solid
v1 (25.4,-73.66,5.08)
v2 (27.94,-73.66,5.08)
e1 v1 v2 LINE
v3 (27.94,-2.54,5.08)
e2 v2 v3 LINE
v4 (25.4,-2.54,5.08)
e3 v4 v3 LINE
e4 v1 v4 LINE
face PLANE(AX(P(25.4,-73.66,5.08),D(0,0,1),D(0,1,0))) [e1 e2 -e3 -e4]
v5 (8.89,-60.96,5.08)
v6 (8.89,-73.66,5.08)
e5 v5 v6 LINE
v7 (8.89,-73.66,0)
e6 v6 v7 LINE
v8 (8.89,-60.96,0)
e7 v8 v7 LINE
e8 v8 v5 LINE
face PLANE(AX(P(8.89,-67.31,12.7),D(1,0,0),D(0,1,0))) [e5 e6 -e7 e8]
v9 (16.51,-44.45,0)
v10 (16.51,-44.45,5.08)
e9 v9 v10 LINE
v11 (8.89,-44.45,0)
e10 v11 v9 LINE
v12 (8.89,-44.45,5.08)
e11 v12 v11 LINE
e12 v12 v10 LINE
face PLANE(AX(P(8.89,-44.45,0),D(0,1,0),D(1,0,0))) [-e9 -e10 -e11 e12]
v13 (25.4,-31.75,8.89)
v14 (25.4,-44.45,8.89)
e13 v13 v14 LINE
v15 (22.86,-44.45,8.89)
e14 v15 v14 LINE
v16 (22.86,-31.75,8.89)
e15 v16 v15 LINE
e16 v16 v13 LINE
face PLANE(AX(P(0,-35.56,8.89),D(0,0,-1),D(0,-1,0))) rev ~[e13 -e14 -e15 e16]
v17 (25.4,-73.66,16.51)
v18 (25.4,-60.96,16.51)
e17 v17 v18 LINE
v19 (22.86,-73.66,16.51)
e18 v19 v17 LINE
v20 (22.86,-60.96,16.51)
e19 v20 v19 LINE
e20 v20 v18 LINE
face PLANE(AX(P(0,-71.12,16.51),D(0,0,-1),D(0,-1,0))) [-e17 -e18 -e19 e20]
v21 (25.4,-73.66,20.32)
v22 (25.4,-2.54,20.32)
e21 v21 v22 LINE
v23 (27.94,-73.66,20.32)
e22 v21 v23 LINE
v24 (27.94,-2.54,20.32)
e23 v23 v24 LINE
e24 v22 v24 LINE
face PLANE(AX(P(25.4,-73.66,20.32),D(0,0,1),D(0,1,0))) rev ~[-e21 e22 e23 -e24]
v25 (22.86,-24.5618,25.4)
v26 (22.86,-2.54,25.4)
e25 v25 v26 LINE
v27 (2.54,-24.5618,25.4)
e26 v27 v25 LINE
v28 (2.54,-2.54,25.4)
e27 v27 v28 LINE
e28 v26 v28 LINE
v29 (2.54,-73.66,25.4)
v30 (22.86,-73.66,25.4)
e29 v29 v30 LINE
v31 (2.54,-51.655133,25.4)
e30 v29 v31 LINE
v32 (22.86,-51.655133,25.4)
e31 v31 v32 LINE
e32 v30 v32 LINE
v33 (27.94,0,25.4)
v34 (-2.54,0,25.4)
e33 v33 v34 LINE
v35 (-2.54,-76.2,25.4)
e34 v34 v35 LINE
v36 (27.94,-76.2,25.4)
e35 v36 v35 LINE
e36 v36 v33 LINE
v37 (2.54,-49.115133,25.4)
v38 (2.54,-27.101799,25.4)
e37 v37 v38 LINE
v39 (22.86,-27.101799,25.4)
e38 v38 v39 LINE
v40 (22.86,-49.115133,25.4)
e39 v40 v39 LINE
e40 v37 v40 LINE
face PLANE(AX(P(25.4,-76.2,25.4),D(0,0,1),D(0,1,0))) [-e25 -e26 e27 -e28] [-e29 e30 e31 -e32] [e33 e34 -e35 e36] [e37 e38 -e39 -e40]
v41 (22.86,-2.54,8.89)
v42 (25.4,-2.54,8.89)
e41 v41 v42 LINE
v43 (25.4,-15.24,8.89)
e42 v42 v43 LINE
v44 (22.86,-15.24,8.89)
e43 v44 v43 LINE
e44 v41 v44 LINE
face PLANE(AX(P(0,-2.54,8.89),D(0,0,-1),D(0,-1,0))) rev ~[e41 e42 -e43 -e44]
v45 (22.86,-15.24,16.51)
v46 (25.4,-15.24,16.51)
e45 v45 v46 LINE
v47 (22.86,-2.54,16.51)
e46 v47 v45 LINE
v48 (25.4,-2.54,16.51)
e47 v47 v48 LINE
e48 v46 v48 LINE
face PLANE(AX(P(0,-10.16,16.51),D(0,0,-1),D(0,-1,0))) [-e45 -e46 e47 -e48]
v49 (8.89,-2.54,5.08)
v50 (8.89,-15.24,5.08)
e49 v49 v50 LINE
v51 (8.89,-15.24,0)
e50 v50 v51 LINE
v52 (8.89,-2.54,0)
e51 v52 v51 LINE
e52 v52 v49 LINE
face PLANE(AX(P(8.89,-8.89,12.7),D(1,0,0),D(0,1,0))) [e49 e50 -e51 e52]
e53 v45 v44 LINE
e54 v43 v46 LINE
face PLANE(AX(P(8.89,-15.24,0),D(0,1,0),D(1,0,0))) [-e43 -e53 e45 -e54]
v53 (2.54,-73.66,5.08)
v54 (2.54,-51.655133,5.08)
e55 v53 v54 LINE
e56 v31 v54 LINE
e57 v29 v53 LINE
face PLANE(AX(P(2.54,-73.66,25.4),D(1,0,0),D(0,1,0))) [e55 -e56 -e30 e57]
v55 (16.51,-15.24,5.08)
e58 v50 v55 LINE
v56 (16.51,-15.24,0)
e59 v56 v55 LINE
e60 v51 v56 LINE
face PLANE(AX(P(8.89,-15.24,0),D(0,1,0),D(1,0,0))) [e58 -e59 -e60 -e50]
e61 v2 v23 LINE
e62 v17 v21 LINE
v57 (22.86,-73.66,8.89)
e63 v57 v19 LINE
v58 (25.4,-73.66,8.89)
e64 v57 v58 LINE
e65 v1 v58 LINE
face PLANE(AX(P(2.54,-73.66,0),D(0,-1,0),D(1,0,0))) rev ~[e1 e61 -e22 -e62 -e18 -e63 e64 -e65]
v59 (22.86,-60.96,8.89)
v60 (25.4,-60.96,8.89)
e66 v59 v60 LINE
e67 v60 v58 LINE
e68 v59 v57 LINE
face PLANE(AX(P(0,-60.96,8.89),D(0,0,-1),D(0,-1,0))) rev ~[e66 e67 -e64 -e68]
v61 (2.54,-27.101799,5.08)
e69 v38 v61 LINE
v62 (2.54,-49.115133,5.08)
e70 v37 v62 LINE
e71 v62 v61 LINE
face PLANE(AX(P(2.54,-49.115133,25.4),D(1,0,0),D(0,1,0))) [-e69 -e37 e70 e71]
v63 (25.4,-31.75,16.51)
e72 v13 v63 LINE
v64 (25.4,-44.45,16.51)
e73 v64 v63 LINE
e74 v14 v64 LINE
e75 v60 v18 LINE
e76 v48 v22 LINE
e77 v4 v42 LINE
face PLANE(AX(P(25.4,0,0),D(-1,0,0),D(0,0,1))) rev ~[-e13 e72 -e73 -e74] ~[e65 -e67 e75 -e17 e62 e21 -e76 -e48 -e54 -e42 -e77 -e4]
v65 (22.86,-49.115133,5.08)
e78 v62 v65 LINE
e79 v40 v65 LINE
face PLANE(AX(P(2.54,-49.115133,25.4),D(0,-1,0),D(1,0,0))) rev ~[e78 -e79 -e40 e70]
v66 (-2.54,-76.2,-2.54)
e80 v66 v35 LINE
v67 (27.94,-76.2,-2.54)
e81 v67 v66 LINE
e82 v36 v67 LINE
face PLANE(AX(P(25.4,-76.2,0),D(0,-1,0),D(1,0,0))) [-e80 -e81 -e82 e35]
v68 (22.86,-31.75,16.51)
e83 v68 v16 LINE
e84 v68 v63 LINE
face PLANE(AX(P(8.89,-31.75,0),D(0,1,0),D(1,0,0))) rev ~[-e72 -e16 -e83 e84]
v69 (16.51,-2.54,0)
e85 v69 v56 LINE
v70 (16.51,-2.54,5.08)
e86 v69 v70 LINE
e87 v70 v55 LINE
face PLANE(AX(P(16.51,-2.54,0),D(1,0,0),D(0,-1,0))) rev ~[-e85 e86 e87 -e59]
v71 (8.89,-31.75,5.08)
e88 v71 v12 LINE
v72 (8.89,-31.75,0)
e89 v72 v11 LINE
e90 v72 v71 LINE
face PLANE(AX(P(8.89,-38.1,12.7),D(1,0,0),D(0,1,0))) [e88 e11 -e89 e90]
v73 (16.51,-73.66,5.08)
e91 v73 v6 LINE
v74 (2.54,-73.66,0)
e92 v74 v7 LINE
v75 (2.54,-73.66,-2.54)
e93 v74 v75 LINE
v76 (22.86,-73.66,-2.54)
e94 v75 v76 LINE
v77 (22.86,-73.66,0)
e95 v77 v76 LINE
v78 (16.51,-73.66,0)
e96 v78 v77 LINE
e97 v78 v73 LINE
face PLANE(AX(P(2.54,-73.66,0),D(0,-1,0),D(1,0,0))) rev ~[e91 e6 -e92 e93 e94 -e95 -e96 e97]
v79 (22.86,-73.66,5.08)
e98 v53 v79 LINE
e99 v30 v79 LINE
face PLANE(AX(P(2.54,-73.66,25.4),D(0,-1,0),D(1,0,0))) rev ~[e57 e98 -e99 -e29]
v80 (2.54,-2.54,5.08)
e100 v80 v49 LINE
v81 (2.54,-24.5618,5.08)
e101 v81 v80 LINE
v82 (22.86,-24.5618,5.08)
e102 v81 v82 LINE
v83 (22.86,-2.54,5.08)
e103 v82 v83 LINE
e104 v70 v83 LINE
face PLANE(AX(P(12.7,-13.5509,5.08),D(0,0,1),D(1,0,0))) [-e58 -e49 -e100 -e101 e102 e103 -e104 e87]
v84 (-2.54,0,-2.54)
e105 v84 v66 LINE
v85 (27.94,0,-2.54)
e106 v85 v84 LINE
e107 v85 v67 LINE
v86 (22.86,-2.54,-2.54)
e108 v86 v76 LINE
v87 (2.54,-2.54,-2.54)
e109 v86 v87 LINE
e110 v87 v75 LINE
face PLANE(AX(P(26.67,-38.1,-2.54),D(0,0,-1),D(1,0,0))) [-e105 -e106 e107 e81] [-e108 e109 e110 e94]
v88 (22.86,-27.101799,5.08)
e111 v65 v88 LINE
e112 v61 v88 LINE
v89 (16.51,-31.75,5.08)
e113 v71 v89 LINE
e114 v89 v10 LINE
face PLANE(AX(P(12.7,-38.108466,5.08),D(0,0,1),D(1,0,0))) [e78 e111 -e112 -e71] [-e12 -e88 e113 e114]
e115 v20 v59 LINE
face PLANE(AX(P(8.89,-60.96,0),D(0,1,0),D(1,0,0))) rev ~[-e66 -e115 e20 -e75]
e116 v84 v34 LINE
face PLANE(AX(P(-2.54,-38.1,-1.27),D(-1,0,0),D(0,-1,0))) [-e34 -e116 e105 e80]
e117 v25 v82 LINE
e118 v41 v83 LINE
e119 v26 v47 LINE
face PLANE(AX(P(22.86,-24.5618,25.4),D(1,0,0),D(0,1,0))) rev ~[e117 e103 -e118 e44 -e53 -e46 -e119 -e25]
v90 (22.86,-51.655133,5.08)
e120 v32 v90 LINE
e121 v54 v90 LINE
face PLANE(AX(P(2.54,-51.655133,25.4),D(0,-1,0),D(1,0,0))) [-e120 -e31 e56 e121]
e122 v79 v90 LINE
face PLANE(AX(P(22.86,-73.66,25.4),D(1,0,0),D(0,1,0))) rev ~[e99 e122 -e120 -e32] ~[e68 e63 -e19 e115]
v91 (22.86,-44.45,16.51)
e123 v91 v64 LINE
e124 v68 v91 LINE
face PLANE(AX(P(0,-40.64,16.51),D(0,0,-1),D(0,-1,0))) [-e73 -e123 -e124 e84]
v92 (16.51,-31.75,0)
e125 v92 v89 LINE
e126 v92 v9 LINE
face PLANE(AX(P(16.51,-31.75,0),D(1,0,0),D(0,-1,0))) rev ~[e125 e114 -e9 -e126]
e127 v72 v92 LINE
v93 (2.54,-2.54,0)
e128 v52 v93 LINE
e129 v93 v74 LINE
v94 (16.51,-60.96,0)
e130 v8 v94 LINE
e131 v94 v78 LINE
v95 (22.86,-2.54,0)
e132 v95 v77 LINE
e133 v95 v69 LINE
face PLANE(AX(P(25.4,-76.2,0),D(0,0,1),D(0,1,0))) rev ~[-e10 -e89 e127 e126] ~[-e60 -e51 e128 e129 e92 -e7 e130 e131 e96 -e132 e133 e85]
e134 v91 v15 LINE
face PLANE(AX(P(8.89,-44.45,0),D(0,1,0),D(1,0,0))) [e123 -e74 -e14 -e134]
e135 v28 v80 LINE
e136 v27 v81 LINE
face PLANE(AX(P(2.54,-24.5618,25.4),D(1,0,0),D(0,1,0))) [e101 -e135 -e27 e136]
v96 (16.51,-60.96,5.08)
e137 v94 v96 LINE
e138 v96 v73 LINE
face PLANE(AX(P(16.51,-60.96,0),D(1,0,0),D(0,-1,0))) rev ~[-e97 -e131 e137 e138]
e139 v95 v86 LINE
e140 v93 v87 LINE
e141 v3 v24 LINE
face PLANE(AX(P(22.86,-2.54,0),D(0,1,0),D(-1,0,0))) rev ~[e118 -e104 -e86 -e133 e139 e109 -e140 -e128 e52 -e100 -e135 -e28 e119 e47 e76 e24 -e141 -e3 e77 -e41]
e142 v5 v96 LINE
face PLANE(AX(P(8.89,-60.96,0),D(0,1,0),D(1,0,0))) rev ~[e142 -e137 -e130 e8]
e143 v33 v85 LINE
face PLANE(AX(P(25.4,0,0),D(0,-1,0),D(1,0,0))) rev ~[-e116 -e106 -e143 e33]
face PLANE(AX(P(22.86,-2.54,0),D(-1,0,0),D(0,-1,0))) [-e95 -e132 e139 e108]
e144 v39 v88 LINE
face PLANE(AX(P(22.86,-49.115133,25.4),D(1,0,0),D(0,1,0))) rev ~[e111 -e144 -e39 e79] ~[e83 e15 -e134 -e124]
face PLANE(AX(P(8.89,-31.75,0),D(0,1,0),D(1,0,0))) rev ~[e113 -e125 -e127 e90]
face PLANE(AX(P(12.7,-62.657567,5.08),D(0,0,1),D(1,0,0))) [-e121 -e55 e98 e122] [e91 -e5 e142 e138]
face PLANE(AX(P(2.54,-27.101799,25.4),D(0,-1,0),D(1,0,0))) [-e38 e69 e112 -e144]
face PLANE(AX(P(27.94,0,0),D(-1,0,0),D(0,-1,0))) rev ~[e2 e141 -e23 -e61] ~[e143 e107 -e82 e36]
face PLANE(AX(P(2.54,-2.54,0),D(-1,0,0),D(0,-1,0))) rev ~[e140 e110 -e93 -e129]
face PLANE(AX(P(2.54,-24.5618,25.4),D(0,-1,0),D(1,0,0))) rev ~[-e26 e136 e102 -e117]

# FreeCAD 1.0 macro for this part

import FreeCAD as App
import Part
import Sketcher

V = App.Vector
Q = App.Units.Quantity

doc = App.newDocument("Part")
body = doc.addObject("PartDesign::Body", "Body")

# Sketch on XZ plane
sketch1 = body.newObject("Sketcher::SketchObject", "Sketch")
sketch1.AttachmentSupport = (doc.getObject("XZ_Plane"), [""])
sketch1.MapMode = "FlatFace"
sketch1.addGeometry(Part.LineSegment(V(0, 25, 0), V(0, 0, 0)), False)
sketch1.addGeometry(Part.LineSegment(V(0, 0, 0), V(25, 0, 0)), False)
sketch1.addGeometry(Part.LineSegment(V(25, 0, 0), V(25, 25, 0)), False)
sketch1.addGeometry(Part.LineSegment(V(25, 25, 0), V(0, 25, 0)), False)
sketch1.addConstraint(Sketcher.Constraint("Coincident", 0, 2, 1, 1))
sketch1.addConstraint(Sketcher.Constraint("Coincident", 1, 2, 2, 1))
sketch1.addConstraint(Sketcher.Constraint("Coincident", 2, 2, 3, 1))
sketch1.addConstraint(Sketcher.Constraint("Coincident", 3, 2, 0, 1))
sketch1.addConstraint(Sketcher.Constraint("Vertical", 0))
sketch1.addConstraint(Sketcher.Constraint("Horizontal", 1))
sketch1.addConstraint(Sketcher.Constraint("Vertical", 2))
sketch1.addConstraint(Sketcher.Constraint("Horizontal", 3))
sketch1.addConstraint(Sketcher.Constraint("Coincident", 0, 2, -1, 1))
sketch1.addConstraint(Sketcher.Constraint("Equal", 3, 0))
sketch1.addConstraint(Sketcher.Constraint("DistanceX", 1, 1, 1, 2, Q("1 in")))
pad1 = body.newObject("PartDesign::Pad", "Pad")
pad1.Profile = sketch1
pad1.Length = Q("3 in")

# Sketch on YZ plane
sketch2 = body.newObject("Sketcher::SketchObject", "Sketch001")
sketch2.AttachmentSupport = (doc.getObject("YZ_Plane"), [""])
sketch2.MapMode = "FlatFace"
sketch2.addGeometry(Part.LineSegment(V(-5, 17, 0), V(-5, 9, 0)), False)
sketch2.addGeometry(Part.LineSegment(V(-5, 9, 0), V(-10, 9, 0)), False)
sketch2.addGeometry(Part.LineSegment(V(-10, 9, 0), V(-10, 17, 0)), False)
sketch2.addGeometry(Part.LineSegment(V(-10, 17, 0), V(-5, 17, 0)), False)
sketch2.addGeometry(Part.LineSegment(V(-36, 17, 0), V(-36, 9, 0)), False)
sketch2.addGeometry(Part.LineSegment(V(-36, 9, 0), V(-41, 9, 0)), False)
sketch2.addGeometry(Part.LineSegment(V(-41, 9, 0), V(-41, 17, 0)), False)
sketch2.addGeometry(Part.LineSegment(V(-41, 17, 0), V(-36, 17, 0)), False)
sketch2.addGeometry(Part.LineSegment(V(-66, 17, 0), V(-66, 9, 0)), False)
sketch2.addGeometry(Part.LineSegment(V(-66, 9, 0), V(-71, 9, 0)), False)
sketch2.addGeometry(Part.LineSegment(V(-71, 9, 0), V(-71, 17, 0)), False)
sketch2.addGeometry(Part.LineSegment(V(-71, 17, 0), V(-66, 17, 0)), False)
sketch2.addConstraint(Sketcher.Constraint("Coincident", 0, 2, 1, 1))
sketch2.addConstraint(Sketcher.Constraint("Coincident", 1, 2, 2, 1))
sketch2.addConstraint(Sketcher.Constraint("Coincident", 2, 2, 3, 1))
sketch2.addConstraint(Sketcher.Constraint("Coincident", 3, 2, 0, 1))
sketch2.addConstraint(Sketcher.Constraint("Coincident", 4, 2, 5, 1))
sketch2.addConstraint(Sketcher.Constraint("Coincident", 5, 2, 6, 1))
sketch2.addConstraint(Sketcher.Constraint("Coincident", 6, 2, 7, 1))
sketch2.addConstraint(Sketcher.Constraint("Coincident", 7, 2, 4, 1))
sketch2.addConstraint(Sketcher.Constraint("Coincident", 8, 2, 9, 1))
sketch2.addConstraint(Sketcher.Constraint("Coincident", 9, 2, 10, 1))
sketch2.addConstraint(Sketcher.Constraint("Coincident", 10, 2, 11, 1))
sketch2.addConstraint(Sketcher.Constraint("Coincident", 11, 2, 8, 1))
sketch2.addConstraint(Sketcher.Constraint("Vertical", 0))
sketch2.addConstraint(Sketcher.Constraint("Horizontal", 1))
sketch2.addConstraint(Sketcher.Constraint("Vertical", 2))
sketch2.addConstraint(Sketcher.Constraint("Horizontal", 3))
sketch2.addConstraint(Sketcher.Constraint("Vertical", 4))
sketch2.addConstraint(Sketcher.Constraint("Horizontal", 5))
sketch2.addConstraint(Sketcher.Constraint("Vertical", 6))
sketch2.addConstraint(Sketcher.Constraint("Horizontal", 7))
sketch2.addConstraint(Sketcher.Constraint("Vertical", 8))
sketch2.addConstraint(Sketcher.Constraint("Horizontal", 9))
sketch2.addConstraint(Sketcher.Constraint("Vertical", 10))
sketch2.addConstraint(Sketcher.Constraint("Horizontal", 11))
sketch2.addConstraint(Sketcher.Constraint("Horizontal", 1, 2, 4, 2))
sketch2.addConstraint(Sketcher.Constraint("Horizontal", 3, 2, 6, 2))
sketch2.addConstraint(Sketcher.Constraint("Horizontal", 5, 2, 8, 2))
sketch2.addConstraint(Sketcher.Constraint("Horizontal", 7, 2, 10, 2))
sketch2.addConstraint(Sketcher.Constraint("Equal", 3, 5))
sketch2.addConstraint(Sketcher.Constraint("Equal", 7, 9))
sketch2.addConstraint(Sketcher.Constraint("DistanceX", 1, 2, 1, 1, Q("0.2 in")))
sketch2.addConstraint(Sketcher.Constraint("DistanceY", 0, 2, 0, 1, Q("0.3 in")))
sketch2.addConstraint(Sketcher.Constraint("DistanceX", 4, 2, 1, 2, Q("1 in")))
sketch2.addConstraint(Sketcher.Constraint("DistanceX", 8, 2, 5, 2, Q("1 in")))
sketch2.addConstraint(Sketcher.Constraint("DistanceX", 0, 2, -1, 1, Q("0.2 in")))
sketch2.addConstraint(Sketcher.Constraint("DistanceY", -1, 1, 0, 2, Q("0.35 in")))
pocket1 = body.newObject("PartDesign::Pocket", "Pocket")
pocket1.Profile = sketch2
pocket1.Length = Q("1 in")
pocket1.Reversed = True

# Sketch on YZ plane
sketch3 = body.newObject("Sketcher::SketchObject", "Sketch002")
sketch3.AttachmentSupport = (doc.getObject("YZ_Plane"), [""])
sketch3.MapMode = "FlatFace"
sketch3.addGeometry(Part.LineSegment(V(0, 25, 0), V(0, 0, 0)), False)
sketch3.addGeometry(Part.LineSegment(V(0, 0, 0), V(-76, 0, 0)), False)
sketch3.addGeometry(Part.LineSegment(V(-76, 0, 0), V(-76, 25, 0)), False)
sketch3.addGeometry(Part.LineSegment(V(-76, 25, 0), V(0, 25, 0)), False)
sketch3.addGeometry(Part.LineSegment(V(-74, 5, 0), V(-3, 5, 0)), False)
sketch3.addGeometry(Part.LineSegment(V(-3, 5, 0), V(-3, 20, 0)), False)
sketch3.addGeometry(Part.LineSegment(V(-3, 20, 0), V(-74, 20, 0)), False)
sketch3.addGeometry(Part.LineSegment(V(-74, 20, 0), V(-74, 5, 0)), False)
sketch3.addConstraint(Sketcher.Constraint("Coincident", 0, 2, 1, 1))
sketch3.addConstraint(Sketcher.Constraint("Coincident", 1, 2, 2, 1))
sketch3.addConstraint(Sketcher.Constraint("Coincident", 2, 2, 3, 1))
sketch3.addConstraint(Sketcher.Constraint("Coincident", 3, 2, 0, 1))
sketch3.addConstraint(Sketcher.Constraint("Coincident", 4, 2, 5, 1))
sketch3.addConstraint(Sketcher.Constraint("Coincident", 5, 2, 6, 1))
sketch3.addConstraint(Sketcher.Constraint("Coincident", 6, 2, 7, 1))
sketch3.addConstraint(Sketcher.Constraint("Coincident", 7, 2, 4, 1))
sketch3.addConstraint(Sketcher.Constraint("Vertical", 0))
sketch3.addConstraint(Sketcher.Constraint("Horizontal", 1))
sketch3.addConstraint(Sketcher.Constraint("Vertical", 2))
sketch3.addConstraint(Sketcher.Constraint("Horizontal", 3))
sketch3.addConstraint(Sketcher.Constraint("Horizontal", 4))
sketch3.addConstraint(Sketcher.Constraint("Vertical", 5))
sketch3.addConstraint(Sketcher.Constraint("Horizontal", 6))
sketch3.addConstraint(Sketcher.Constraint("Vertical", 7))
sketch3.addConstraint(Sketcher.Constraint("Coincident", 0, 2, -1, 1))
sketch3.addConstraint(Sketcher.Constraint("DistanceX", 1, 2, 1, 1, Q("3 in")))
sketch3.addConstraint(Sketcher.Constraint("DistanceY", 0, 2, 0, 1, Q("1 in")))
sketch3.addConstraint(Sketcher.Constraint("DistanceX", 4, 1, 4, 2, Q("2.8 in")))
sketch3.addConstraint(Sketcher.Constraint("DistanceY", 5, 1, 5, 2, Q("0.6 in")))
sketch3.addConstraint(Sketcher.Constraint("DistanceX", 4, 2, -1, 1, Q("0.1 in")))
sketch3.addConstraint(Sketcher.Constraint("DistanceY", -1, 1, 4, 2, Q("0.2 in")))
pad2 = body.newObject("PartDesign::Pad", "Pad001")
pad2.Profile = sketch3
pad2.Length = Q("0.1 in")
pad2.Reversed = True

# Sketch on YZ plane
sketch4 = body.newObject("Sketcher::SketchObject", "Sketch003")
sketch4.AttachmentSupport = (doc.getObject("YZ_Plane"), [""])
sketch4.MapMode = "FlatFace"
sketch4.AttachmentOffset = App.Placement(V(0, 0, 1 * 25.4), App.Rotation())
sketch4.addGeometry(Part.LineSegment(V(-76, 25, 0), V(-76, 0, 0)), False)
sketch4.addGeometry(Part.LineSegment(V(-76, 0, 0), V(0, 0, 0)), False)
sketch4.addGeometry(Part.LineSegment(V(0, 0, 0), V(0, 25, 0)), False)
sketch4.addGeometry(Part.LineSegment(V(0, 25, 0), V(-76, 25, 0)), False)
sketch4.addGeometry(Part.LineSegment(V(-3, 5, 0), V(-74, 5, 0)), False)
sketch4.addGeometry(Part.LineSegment(V(-74, 5, 0), V(-74, 20, 0)), False)
sketch4.addGeometry(Part.LineSegment(V(-74, 20, 0), V(-3, 20, 0)), False)
sketch4.addGeometry(Part.LineSegment(V(-3, 20, 0), V(-3, 5, 0)), False)
sketch4.addConstraint(Sketcher.Constraint("Coincident", 0, 2, 1, 1))
sketch4.addConstraint(Sketcher.Constraint("Coincident", 1, 2, 2, 1))
sketch4.addConstraint(Sketcher.Constraint("Coincident", 2, 2, 3, 1))
sketch4.addConstraint(Sketcher.Constraint("Coincident", 3, 2, 0, 1))
sketch4.addConstraint(Sketcher.Constraint("Coincident", 4, 2, 5, 1))
sketch4.addConstraint(Sketcher.Constraint("Coincident", 5, 2, 6, 1))
sketch4.addConstraint(Sketcher.Constraint("Coincident", 6, 2, 7, 1))
sketch4.addConstraint(Sketcher.Constraint("Coincident", 7, 2, 4, 1))
sketch4.addConstraint(Sketcher.Constraint("Vertical", 0))
sketch4.addConstraint(Sketcher.Constraint("Horizontal", 1))
sketch4.addConstraint(Sketcher.Constraint("Vertical", 2))
sketch4.addConstraint(Sketcher.Constraint("Horizontal", 3))
sketch4.addConstraint(Sketcher.Constraint("Horizontal", 4))
sketch4.addConstraint(Sketcher.Constraint("Vertical", 5))
sketch4.addConstraint(Sketcher.Constraint("Horizontal", 6))
sketch4.addConstraint(Sketcher.Constraint("Vertical", 7))
sketch4.addConstraint(Sketcher.Constraint("Coincident", 1, 2, -1, 1))
sketch4.addConstraint(Sketcher.Constraint("DistanceX", 1, 1, 1, 2, Q("3 in")))
sketch4.addConstraint(Sketcher.Constraint("DistanceY", 0, 2, 0, 1, Q("1 in")))
sketch4.addConstraint(Sketcher.Constraint("DistanceX", 4, 2, 4, 1, Q("2.8 in")))
sketch4.addConstraint(Sketcher.Constraint("DistanceY", 5, 1, 5, 2, Q("0.6 in")))
sketch4.addConstraint(Sketcher.Constraint("DistanceX", 4, 2, -1, 1, Q("2.9 in")))
sketch4.addConstraint(Sketcher.Constraint("DistanceY", -1, 1, 4, 2, Q("0.2 in")))
pad3 = body.newObject("PartDesign::Pad", "Pad002")
pad3.Profile = sketch4
pad3.Length = Q("0.1 in")

# Sketch on YZ plane
sketch5 = body.newObject("Sketcher::SketchObject", "Sketch004")
sketch5.AttachmentSupport = (doc.getObject("YZ_Plane"), [""])
sketch5.MapMode = "FlatFace"
sketch5.addGeometry(Part.LineSegment(V(-10.2, 16.5, 0), V(-10.2, 8.9, 0)), False)
sketch5.addGeometry(Part.LineSegment(V(-10.2, 8.9, 0), V(-15.2, 8.9, 0)), False)
sketch5.addGeometry(Part.LineSegment(V(-15.2, 8.9, 0), V(-15.2, 16.5, 0)), False)
sketch5.addGeometry(Part.LineSegment(V(-15.2, 16.5, 0), V(-10.2, 16.5, 0)), False)
sketch5.addGeometry(Part.LineSegment(V(-2.5, 16.5, 0), V(-2.5, 8.9, 0)), False)
sketch5.addGeometry(Part.LineSegment(V(-2.5, 8.9, 0), V(-5.1, 8.9, 0)), False)
sketch5.addGeometry(Part.LineSegment(V(-5.1, 8.9, 0), V(-5.1, 16.5, 0)), False)
sketch5.addGeometry(Part.LineSegment(V(-5.1, 16.5, 0), V(-2.5, 16.5, 0)), False)
sketch5.addGeometry(Part.LineSegment(V(-31.8, 16.5, 0), V(-31.8, 8.9, 0)), False)
sketch5.addGeometry(Part.LineSegment(V(-31.8, 8.9, 0), V(-35.6, 8.9, 0)), False)
sketch5.addGeometry(Part.LineSegment(V(-35.6, 8.9, 0), V(-35.6, 16.5, 0)), False)
sketch5.addGeometry(Part.LineSegment(V(-35.6, 16.5, 0), V(-31.8, 16.5, 0)), False)
sketch5.addGeometry(Part.LineSegment(V(-40.6, 16.5, 0), V(-40.6, 8.9, 0)), False)
sketch5.addGeometry(Part.LineSegment(V(-40.6, 8.9, 0), V(-44.5, 8.9, 0)), False)
sketch5.addGeometry(Part.LineSegment(V(-44.5, 8.9, 0), V(-44.5, 16.5, 0)), False)
sketch5.addGeometry(Part.LineSegment(V(-44.5, 16.5, 0), V(-40.6, 16.5, 0)), False)
sketch5.addGeometry(Part.LineSegment(V(-61, 16.5, 0), V(-61, 8.9, 0)), False)
sketch5.addGeometry(Part.LineSegment(V(-61, 8.9, 0), V(-66, 8.9, 0)), False)
sketch5.addGeometry(Part.LineSegment(V(-66, 8.9, 0), V(-66, 16.5, 0)), False)
sketch5.addGeometry(Part.LineSegment(V(-66, 16.5, 0), V(-61, 16.5, 0)), False)
sketch5.addGeometry(Part.LineSegment(V(-71.1, 16.5, 0), V(-71.1, 8.9, 0)), False)
sketch5.addGeometry(Part.LineSegment(V(-71.1, 8.9, 0), V(-73.7, 8.9, 0)), False)
sketch5.addGeometry(Part.LineSegment(V(-73.7, 8.9, 0), V(-73.7, 16.5, 0)), False)
sketch5.addGeometry(Part.LineSegment(V(-73.7, 16.5, 0), V(-71.1, 16.5, 0)), False)
sketch5.addConstraint(Sketcher.Constraint("Coincident", 0, 2, 1, 1))
sketch5.addConstraint(Sketcher.Constraint("Coincident", 1, 2, 2, 1))
sketch5.addConstraint(Sketcher.Constraint("Coincident", 2, 2, 3, 1))
sketch5.addConstraint(Sketcher.Constraint("Coincident", 3, 2, 0, 1))
sketch5.addConstraint(Sketcher.Constraint("Coincident", 4, 2, 5, 1))
sketch5.addConstraint(Sketcher.Constraint("Coincident", 5, 2, 6, 1))
sketch5.addConstraint(Sketcher.Constraint("Coincident", 6, 2, 7, 1))
sketch5.addConstraint(Sketcher.Constraint("Coincident", 7, 2, 4, 1))
sketch5.addConstraint(Sketcher.Constraint("Coincident", 8, 2, 9, 1))
sketch5.addConstraint(Sketcher.Constraint("Coincident", 9, 2, 10, 1))
sketch5.addConstraint(Sketcher.Constraint("Coincident", 10, 2, 11, 1))
sketch5.addConstraint(Sketcher.Constraint("Coincident", 11, 2, 8, 1))
sketch5.addConstraint(Sketcher.Constraint("Coincident", 12, 2, 13, 1))
sketch5.addConstraint(Sketcher.Constraint("Coincident", 13, 2, 14, 1))
sketch5.addConstraint(Sketcher.Constraint("Coincident", 14, 2, 15, 1))
sketch5.addConstraint(Sketcher.Constraint("Coincident", 15, 2, 12, 1))
sketch5.addConstraint(Sketcher.Constraint("Coincident", 16, 2, 17, 1))
sketch5.addConstraint(Sketcher.Constraint("Coincident", 17, 2, 18, 1))
sketch5.addConstraint(Sketcher.Constraint("Coincident", 18, 2, 19, 1))
sketch5.addConstraint(Sketcher.Constraint("Coincident", 19, 2, 16, 1))
sketch5.addConstraint(Sketcher.Constraint("Coincident", 20, 2, 21, 1))
sketch5.addConstraint(Sketcher.Constraint("Coincident", 21, 2, 22, 1))
sketch5.addConstraint(Sketcher.Constraint("Coincident", 22, 2, 23, 1))
sketch5.addConstraint(Sketcher.Constraint("Coincident", 23, 2, 20, 1))
sketch5.addConstraint(Sketcher.Constraint("Vertical", 0))
sketch5.addConstraint(Sketcher.Constraint("Horizontal", 1))
sketch5.addConstraint(Sketcher.Constraint("Vertical", 2))
sketch5.addConstraint(Sketcher.Constraint("Horizontal", 3))
sketch5.addConstraint(Sketcher.Constraint("Vertical", 4))
sketch5.addConstraint(Sketcher.Constraint("Horizontal", 5))
sketch5.addConstraint(Sketcher.Constraint("Vertical", 6))
sketch5.addConstraint(Sketcher.Constraint("Horizontal", 7))
sketch5.addConstraint(Sketcher.Constraint("Vertical", 8))
sketch5.addConstraint(Sketcher.Constraint("Horizontal", 9))
sketch5.addConstraint(Sketcher.Constraint("Vertical", 10))
sketch5.addConstraint(Sketcher.Constraint("Horizontal", 11))
sketch5.addConstraint(Sketcher.Constraint("Vertical", 12))
sketch5.addConstraint(Sketcher.Constraint("Horizontal", 13))
sketch5.addConstraint(Sketcher.Constraint("Vertical", 14))
sketch5.addConstraint(Sketcher.Constraint("Horizontal", 15))
sketch5.addConstraint(Sketcher.Constraint("Vertical", 16))
sketch5.addConstraint(Sketcher.Constraint("Horizontal", 17))
sketch5.addConstraint(Sketcher.Constraint("Vertical", 18))
sketch5.addConstraint(Sketcher.Constraint("Horizontal", 19))
sketch5.addConstraint(Sketcher.Constraint("Vertical", 20))
sketch5.addConstraint(Sketcher.Constraint("Horizontal", 21))
sketch5.addConstraint(Sketcher.Constraint("Vertical", 22))
sketch5.addConstraint(Sketcher.Constraint("Horizontal", 23))
sketch5.addConstraint(Sketcher.Constraint("Horizontal", 1, 2, 4, 2))
sketch5.addConstraint(Sketcher.Constraint("Horizontal", 3, 2, 6, 2))
sketch5.addConstraint(Sketcher.Constraint("Horizontal", 5, 2, 8, 2))
sketch5.addConstraint(Sketcher.Constraint("Horizontal", 7, 2, 10, 2))
sketch5.addConstraint(Sketcher.Constraint("Horizontal", 9, 2, 12, 2))
sketch5.addConstraint(Sketcher.Constraint("Horizontal", 11, 2, 14, 2))
sketch5.addConstraint(Sketcher.Constraint("Horizontal", 13, 2, 16, 2))
sketch5.addConstraint(Sketcher.Constraint("Horizontal", 15, 2, 18, 2))
sketch5.addConstraint(Sketcher.Constraint("Horizontal", 17, 2, 20, 2))
sketch5.addConstraint(Sketcher.Constraint("Horizontal", 19, 2, 22, 2))
sketch5.addConstraint(Sketcher.Constraint("Equal", 11, 13))
sketch5.addConstraint(Sketcher.Constraint("Equal", 3, 17))
sketch5.addConstraint(Sketcher.Constraint("Equal", 7, 21))
sketch5.addConstraint(Sketcher.Constraint("DistanceX", 1, 2, 1, 1, Q("0.2 in")))
sketch5.addConstraint(Sketcher.Constraint("DistanceX", 5, 2, 5, 1, Q("0.1 in")))
sketch5.addConstraint(Sketcher.Constraint("DistanceY", 0, 2, 0, 1, Q("0.3 in")))
sketch5.addConstraint(Sketcher.Constraint("DistanceX", 9, 2, 0, 2, Q("1 in")))
sketch5.addConstraint(Sketcher.Constraint("DistanceX", 12, 2, 1, 2, Q("1 in")))
sketch5.addConstraint(Sketcher.Constraint("DistanceX", 16, 2, 9, 2, Q("1 in")))
sketch5.addConstraint(Sketcher.Constraint("DistanceX", 9, 2, 9, 1, Q("0.15 in")))
sketch5.addConstraint(Sketcher.Constraint("DistanceX", 0, 2, -1, 1, Q("0.4 in")))
sketch5.addConstraint(Sketcher.Constraint("DistanceX", 4, 2, -1, 1, Q("0.1 in")))
sketch5.addConstraint(Sketcher.Constraint("DistanceX", 20, 2, -1, 1, Q("2.8 in")))
sketch5.addConstraint(Sketcher.Constraint("DistanceY", -1, 1, 0, 2, Q("0.35 in")))
pocket2 = body.newObject("PartDesign::Pocket", "Pocket001")
pocket2.Profile = sketch5
pocket2.Length = Q("1 in")
pocket2.Reversed = True

# Sketch on XY plane
sketch6 = body.newObject("Sketcher::SketchObject", "Sketch005")
sketch6.AttachmentSupport = (doc.getObject("XY_Plane"), [""])
sketch6.MapMode = "FlatFace"
sketch6.addGeometry(Part.LineSegment(V(9, -15, 0), V(9, -3, 0)), False)
sketch6.addGeometry(Part.LineSegment(V(9, -3, 0), V(17, -3, 0)), False)
sketch6.addGeometry(Part.LineSegment(V(17, -3, 0), V(17, -15, 0)), False)
sketch6.addGeometry(Part.LineSegment(V(17, -15, 0), V(9, -15, 0)), False)
sketch6.addGeometry(Part.LineSegment(V(9, -44, 0), V(9, -32, 0)), False)
sketch6.addGeometry(Part.LineSegment(V(9, -32, 0), V(17, -32, 0)), False)
sketch6.addGeometry(Part.LineSegment(V(17, -32, 0), V(17, -44, 0)), False)
sketch6.addGeometry(Part.LineSegment(V(17, -44, 0), V(9, -44, 0)), False)
sketch6.addGeometry(Part.LineSegment(V(9, -74, 0), V(9, -61, 0)), False)
sketch6.addGeometry(Part.LineSegment(V(9, -61, 0), V(17, -61, 0)), False)
sketch6.addGeometry(Part.LineSegment(V(17, -61, 0), V(17, -74, 0)), False)
sketch6.addGeometry(Part.LineSegment(V(17, -74, 0), V(9, -74, 0)), False)
sketch6.addConstraint(Sketcher.Constraint("Coincident", 0, 2, 1, 1))
sketch6.addConstraint(Sketcher.Constraint("Coincident", 1, 2, 2, 1))
sketch6.addConstraint(Sketcher.Constraint("Coincident", 2, 2, 3, 1))
sketch6.addConstraint(Sketcher.Constraint("Coincident", 3, 2, 0, 1))
sketch6.addConstraint(Sketcher.Constraint("Coincident", 4, 2, 5, 1))
sketch6.addConstraint(Sketcher.Constraint("Coincident", 5, 2, 6, 1))
sketch6.addConstraint(Sketcher.Constraint("Coincident", 6, 2, 7, 1))
sketch6.addConstraint(Sketcher.Constraint("Coincident", 7, 2, 4, 1))
sketch6.addConstraint(Sketcher.Constraint("Coincident", 8, 2, 9, 1))
sketch6.addConstraint(Sketcher.Constraint("Coincident", 9, 2, 10, 1))
sketch6.addConstraint(Sketcher.Constraint("Coincident", 10, 2, 11, 1))
sketch6.addConstraint(Sketcher.Constraint("Coincident", 11, 2, 8, 1))
sketch6.addConstraint(Sketcher.Constraint("Vertical", 0))
sketch6.addConstraint(Sketcher.Constraint("Horizontal", 1))
sketch6.addConstraint(Sketcher.Constraint("Vertical", 2))
sketch6.addConstraint(Sketcher.Constraint("Horizontal", 3))
sketch6.addConstraint(Sketcher.Constraint("Vertical", 4))
sketch6.addConstraint(Sketcher.Constraint("Horizontal", 5))
sketch6.addConstraint(Sketcher.Constraint("Vertical", 6))
sketch6.addConstraint(Sketcher.Constraint("Horizontal", 7))
sketch6.addConstraint(Sketcher.Constraint("Vertical", 8))
sketch6.addConstraint(Sketcher.Constraint("Horizontal", 9))
sketch6.addConstraint(Sketcher.Constraint("Vertical", 10))
sketch6.addConstraint(Sketcher.Constraint("Horizontal", 11))
sketch6.addConstraint(Sketcher.Constraint("Vertical", 3, 2, 4, 2))
sketch6.addConstraint(Sketcher.Constraint("Vertical", 2, 2, 5, 2))
sketch6.addConstraint(Sketcher.Constraint("Vertical", 7, 2, 8, 2))
sketch6.addConstraint(Sketcher.Constraint("Vertical", 6, 2, 9, 2))
sketch6.addConstraint(Sketcher.Constraint("Equal", 2, 4))
sketch6.addConstraint(Sketcher.Constraint("Equal", 6, 8))
sketch6.addConstraint(Sketcher.Constraint("DistanceX", 1, 1, 1, 2, Q("0.3 in")))
sketch6.addConstraint(Sketcher.Constraint("DistanceY", 0, 1, 0, 2, Q("0.5 in")))
sketch6.addConstraint(Sketcher.Constraint("DistanceY", 0, 2, -1, 1, Q("0.1 in")))
sketch6.addConstraint(Sketcher.Constraint("DistanceY", 8, 2, -1, 1, Q("2.4 in")))
sketch6.addConstraint(Sketcher.Constraint("DistanceX", -1, 1, 0, 2, Q("0.35 in")))
sketch6.addConstraint(Sketcher.Constraint("DistanceY", 4, 2, -1, 1, Q("1.25 in")))
pocket3 = body.newObject("PartDesign::Pocket", "Pocket002")
pocket3.Profile = sketch6
pocket3.Length = Q("1 in")
pocket3.Reversed = True

# Sketch on XY plane
sketch7 = body.newObject("Sketcher::SketchObject", "Sketch006")
sketch7.AttachmentSupport = (doc.getObject("XY_Plane"), [""])
sketch7.MapMode = "FlatFace"
sketch7.addGeometry(Part.LineSegment(V(0, -76, 0), V(0, 0, 0)), False)
sketch7.addGeometry(Part.LineSegment(V(0, 0, 0), V(25, 0, 0)), False)
sketch7.addGeometry(Part.LineSegment(V(25, 0, 0), V(25, -76, 0)), False)
sketch7.addGeometry(Part.LineSegment(V(25, -76, 0), V(0, -76, 0)), False)
sketch7.addGeometry(Part.LineSegment(V(3, -3, 0), V(3, -74, 0)), False)
sketch7.addGeometry(Part.LineSegment(V(3, -74, 0), V(23, -74, 0)), False)
sketch7.addGeometry(Part.LineSegment(V(23, -74, 0), V(23, -3, 0)), False)
sketch7.addGeometry(Part.LineSegment(V(23, -3, 0), V(3, -3, 0)), False)
sketch7.addConstraint(Sketcher.Constraint("Coincident", 0, 2, 1, 1))
sketch7.addConstraint(Sketcher.Constraint("Coincident", 1, 2, 2, 1))
sketch7.addConstraint(Sketcher.Constraint("Coincident", 2, 2, 3, 1))
sketch7.addConstraint(Sketcher.Constraint("Coincident", 3, 2, 0, 1))
sketch7.addConstraint(Sketcher.Constraint("Coincident", 4, 2, 5, 1))
sketch7.addConstraint(Sketcher.Constraint("Coincident", 5, 2, 6, 1))
sketch7.addConstraint(Sketcher.Constraint("Coincident", 6, 2, 7, 1))
sketch7.addConstraint(Sketcher.Constraint("Coincident", 7, 2, 4, 1))
sketch7.addConstraint(Sketcher.Constraint("Vertical", 0))
sketch7.addConstraint(Sketcher.Constraint("Horizontal", 1))
sketch7.addConstraint(Sketcher.Constraint("Vertical", 2))
sketch7.addConstraint(Sketcher.Constraint("Horizontal", 3))
sketch7.addConstraint(Sketcher.Constraint("Vertical", 4))
sketch7.addConstraint(Sketcher.Constraint("Horizontal", 5))
sketch7.addConstraint(Sketcher.Constraint("Vertical", 6))
sketch7.addConstraint(Sketcher.Constraint("Horizontal", 7))
sketch7.addConstraint(Sketcher.Constraint("Coincident", 0, 2, -1, 1))
sketch7.addConstraint(Sketcher.Constraint("DistanceX", 1, 1, 1, 2, Q("1 in")))
sketch7.addConstraint(Sketcher.Constraint("DistanceY", 0, 1, 0, 2, Q("3 in")))
sketch7.addConstraint(Sketcher.Constraint("DistanceX", 5, 1, 5, 2, Q("0.8 in")))
sketch7.addConstraint(Sketcher.Constraint("DistanceY", 4, 2, 4, 1, Q("2.8 in")))
sketch7.addConstraint(Sketcher.Constraint("DistanceX", -1, 1, 4, 2, Q("0.1 in")))
sketch7.addConstraint(Sketcher.Constraint("DistanceY", 4, 2, -1, 1, Q("2.9 in")))
pad4 = body.newObject("PartDesign::Pad", "Pad003")
pad4.Profile = sketch7
pad4.Length = Q("0.1 in")
pad4.Reversed = True

# Sketch on YZ plane
sketch8 = body.newObject("Sketcher::SketchObject", "Sketch007")
sketch8.AttachmentSupport = (doc.getObject("YZ_Plane"), [""])
sketch8.MapMode = "FlatFace"
sketch8.addGeometry(Part.LineSegment(V(-3, 20, 0), V(-3, 5, 0)), False)
sketch8.addGeometry(Part.LineSegment(V(-3, 5, 0), V(-74, 5, 0)), False)
sketch8.addGeometry(Part.LineSegment(V(-74, 5, 0), V(-74, 20, 0)), False)
sketch8.addGeometry(Part.LineSegment(V(-74, 20, 0), V(-3, 20, 0)), False)
sketch8.addConstraint(Sketcher.Constraint("Coincident", 0, 2, 1, 1))
sketch8.addConstraint(Sketcher.Constraint("Coincident", 1, 2, 2, 1))
sketch8.addConstraint(Sketcher.Constraint("Coincident", 2, 2, 3, 1))
sketch8.addConstraint(Sketcher.Constraint("Coincident", 3, 2, 0, 1))
sketch8.addConstraint(Sketcher.Constraint("Vertical", 0))
sketch8.addConstraint(Sketcher.Constraint("Horizontal", 1))
sketch8.addConstraint(Sketcher.Constraint("Vertical", 2))
sketch8.addConstraint(Sketcher.Constraint("Horizontal", 3))
sketch8.addConstraint(Sketcher.Constraint("DistanceX", 1, 2, 1, 1, Q("2.8 in")))
sketch8.addConstraint(Sketcher.Constraint("DistanceY", 0, 2, 0, 1, Q("0.6 in")))
sketch8.addConstraint(Sketcher.Constraint("DistanceX", 0, 2, -1, 1, Q("0.1 in")))
sketch8.addConstraint(Sketcher.Constraint("DistanceY", -1, 1, 0, 2, Q("0.2 in")))
pad5 = body.newObject("PartDesign::Pad", "Pad004")
pad5.Profile = sketch8
pad5.Length = Q("0.1 in")
pad5.Reversed = True

# Sketch on YZ plane
sketch9 = body.newObject("Sketcher::SketchObject", "Sketch008")
sketch9.AttachmentSupport = (doc.getObject("YZ_Plane"), [""])
sketch9.MapMode = "FlatFace"
sketch9.addGeometry(Part.LineSegment(V(-44, 17, 0), V(-44, 9, 0)), False)
sketch9.addGeometry(Part.LineSegment(V(-44, 9, 0), V(-32, 9, 0)), False)
sketch9.addGeometry(Part.LineSegment(V(-32, 9, 0), V(-32, 17, 0)), False)
sketch9.addGeometry(Part.LineSegment(V(-32, 17, 0), V(-44, 17, 0)), False)
sketch9.addConstraint(Sketcher.Constraint("Coincident", 0, 2, 1, 1))
sketch9.addConstraint(Sketcher.Constraint("Coincident", 1, 2, 2, 1))
sketch9.addConstraint(Sketcher.Constraint("Coincident", 2, 2, 3, 1))
sketch9.addConstraint(Sketcher.Constraint("Coincident", 3, 2, 0, 1))
sketch9.addConstraint(Sketcher.Constraint("Vertical", 0))
sketch9.addConstraint(Sketcher.Constraint("Horizontal", 1))
sketch9.addConstraint(Sketcher.Constraint("Vertical", 2))
sketch9.addConstraint(Sketcher.Constraint("Horizontal", 3))
sketch9.addConstraint(Sketcher.Constraint("DistanceX", 1, 1, 1, 2, Q("0.5 in")))
sketch9.addConstraint(Sketcher.Constraint("DistanceY", 0, 2, 0, 1, Q("0.3 in")))
sketch9.addConstraint(Sketcher.Constraint("DistanceX", 0, 2, -1, 1, Q("1.75 in")))
sketch9.addConstraint(Sketcher.Constraint("DistanceY", -1, 1, 0, 2, Q("0.35 in")))
pad6 = body.newObject("PartDesign::Pad", "Pad005")
pad6.Profile = sketch9
pad6.Length = Q("0.35 in")

# Sketch on YZ plane
sketch10 = body.newObject("Sketcher::SketchObject", "Sketch009")
sketch10.AttachmentSupport = (doc.getObject("YZ_Plane"), [""])
sketch10.MapMode = "FlatFace"
sketch10.addGeometry(Part.LineSegment(V(-74, 17, 0), V(-74, 9, 0)), False)
sketch10.addGeometry(Part.LineSegment(V(-74, 9, 0), V(-61, 9, 0)), False)
sketch10.addGeometry(Part.LineSegment(V(-61, 9, 0), V(-61, 17, 0)), False)
sketch10.addGeometry(Part.LineSegment(V(-61, 17, 0), V(-74, 17, 0)), False)
sketch10.addConstraint(Sketcher.Constraint("Coincident", 0, 2, 1, 1))
sketch10.addConstraint(Sketcher.Constraint("Coincident", 1, 2, 2, 1))
sketch10.addConstraint(Sketcher.Constraint("Coincident", 2, 2, 3, 1))
sketch10.addConstraint(Sketcher.Constraint("Coincident", 3, 2, 0, 1))
sketch10.addConstraint(Sketcher.Constraint("Vertical", 0))
sketch10.addConstraint(Sketcher.Constraint("Horizontal", 1))
sketch10.addConstraint(Sketcher.Constraint("Vertical", 2))
sketch10.addConstraint(Sketcher.Constraint("Horizontal", 3))
sketch10.addConstraint(Sketcher.Constraint("DistanceX", 1, 1, 1, 2, Q("0.5 in")))
sketch10.addConstraint(Sketcher.Constraint("DistanceY", 0, 2, 0, 1, Q("0.3 in")))
sketch10.addConstraint(Sketcher.Constraint("DistanceX", 0, 2, -1, 1, Q("2.9 in")))
sketch10.addConstraint(Sketcher.Constraint("DistanceY", -1, 1, 0, 2, Q("0.35 in")))
pad7 = body.newObject("PartDesign::Pad", "Pad006")
pad7.Profile = sketch10
pad7.Length = Q("0.35 in")

# Sketch on YZ plane
sketch11 = body.newObject("Sketcher::SketchObject", "Sketch010")
sketch11.AttachmentSupport = (doc.getObject("YZ_Plane"), [""])
sketch11.MapMode = "FlatFace"
sketch11.addGeometry(Part.LineSegment(V(-15, 17, 0), V(-15, 9, 0)), False)
sketch11.addGeometry(Part.LineSegment(V(-15, 9, 0), V(-3, 9, 0)), False)
sketch11.addGeometry(Part.LineSegment(V(-3, 9, 0), V(-3, 17, 0)), False)
sketch11.addGeometry(Part.LineSegment(V(-3, 17, 0), V(-15, 17, 0)), False)
sketch11.addConstraint(Sketcher.Constraint("Coincident", 0, 2, 1, 1))
sketch11.addConstraint(Sketcher.Constraint("Coincident", 1, 2, 2, 1))
sketch11.addConstraint(Sketcher.Constraint("Coincident", 2, 2, 3, 1))
sketch11.addConstraint(Sketcher.Constraint("Coincident", 3, 2, 0, 1))
sketch11.addConstraint(Sketcher.Constraint("Vertical", 0))
sketch11.addConstraint(Sketcher.Constraint("Horizontal", 1))
sketch11.addConstraint(Sketcher.Constraint("Vertical", 2))
sketch11.addConstraint(Sketcher.Constraint("Horizontal", 3))
sketch11.addConstraint(Sketcher.Constraint("DistanceX", 1, 1, 1, 2, Q("0.5 in")))
sketch11.addConstraint(Sketcher.Constraint("DistanceY", 0, 2, 0, 1, Q("0.3 in")))
sketch11.addConstraint(Sketcher.Constraint("DistanceX", 0, 2, -1, 1, Q("0.6 in")))
sketch11.addConstraint(Sketcher.Constraint("DistanceY", -1, 1, 0, 2, Q("0.35 in")))
pad8 = body.newObject("PartDesign::Pad", "Pad007")
pad8.Profile = sketch11
pad8.Length = Q("0.35 in")

# Sketch on XY plane
sketch12 = body.newObject("Sketcher::SketchObject", "Sketch011")
sketch12.AttachmentSupport = (doc.getObject("XY_Plane"), [""])
sketch12.MapMode = "FlatFace"
sketch12.AttachmentOffset = App.Placement(V(0, 0, 1 * 25.4), App.Rotation())
sketch12.addGeometry(Part.LineSegment(V(3, -3, 0), V(3, -25, 0)), False)
sketch12.addGeometry(Part.LineSegment(V(3, -25, 0), V(23, -25, 0)), False)
sketch12.addGeometry(Part.LineSegment(V(23, -25, 0), V(23, -3, 0)), False)
sketch12.addGeometry(Part.LineSegment(V(23, -3, 0), V(3, -3, 0)), False)
sketch12.addGeometry(Part.LineSegment(V(3, -27, 0), V(3, -49, 0)), False)
sketch12.addGeometry(Part.LineSegment(V(3, -49, 0), V(23, -49, 0)), False)
sketch12.addGeometry(Part.LineSegment(V(23, -49, 0), V(23, -27, 0)), False)
sketch12.addGeometry(Part.LineSegment(V(23, -27, 0), V(3, -27, 0)), False)
sketch12.addGeometry(Part.LineSegment(V(3, -52, 0), V(3, -74, 0)), False)
sketch12.addGeometry(Part.LineSegment(V(3, -74, 0), V(23, -74, 0)), False)
sketch12.addGeometry(Part.LineSegment(V(23, -74, 0), V(23, -52, 0)), False)
sketch12.addGeometry(Part.LineSegment(V(23, -52, 0), V(3, -52, 0)), False)
sketch12.addConstraint(Sketcher.Constraint("Coincident", 0, 2, 1, 1))
sketch12.addConstraint(Sketcher.Constraint("Coincident", 1, 2, 2, 1))
sketch12.addConstraint(Sketcher.Constraint("Coincident", 2, 2, 3, 1))
sketch12.addConstraint(Sketcher.Constraint("Coincident", 3, 2, 0, 1))
sketch12.addConstraint(Sketcher.Constraint("Coincident", 4, 2, 5, 1))
sketch12.addConstraint(Sketcher.Constraint("Coincident", 5, 2, 6, 1))
sketch12.addConstraint(Sketcher.Constraint("Coincident", 6, 2, 7, 1))
sketch12.addConstraint(Sketcher.Constraint("Coincident", 7, 2, 4, 1))
sketch12.addConstraint(Sketcher.Constraint("Coincident", 8, 2, 9, 1))
sketch12.addConstraint(Sketcher.Constraint("Coincident", 9, 2, 10, 1))
sketch12.addConstraint(Sketcher.Constraint("Coincident", 10, 2, 11, 1))
sketch12.addConstraint(Sketcher.Constraint("Coincident", 11, 2, 8, 1))
sketch12.addConstraint(Sketcher.Constraint("Vertical", 0))
sketch12.addConstraint(Sketcher.Constraint("Horizontal", 1))
sketch12.addConstraint(Sketcher.Constraint("Vertical", 2))
sketch12.addConstraint(Sketcher.Constraint("Horizontal", 3))
sketch12.addConstraint(Sketcher.Constraint("Vertical", 4))
sketch12.addConstraint(Sketcher.Constraint("Horizontal", 5))
sketch12.addConstraint(Sketcher.Constraint("Vertical", 6))
sketch12.addConstraint(Sketcher.Constraint("Horizontal", 7))
sketch12.addConstraint(Sketcher.Constraint("Vertical", 8))
sketch12.addConstraint(Sketcher.Constraint("Horizontal", 9))
sketch12.addConstraint(Sketcher.Constraint("Vertical", 10))
sketch12.addConstraint(Sketcher.Constraint("Horizontal", 11))
sketch12.addConstraint(Sketcher.Constraint("Vertical", 3, 2, 4, 2))
sketch12.addConstraint(Sketcher.Constraint("Vertical", 2, 2, 5, 2))
sketch12.addConstraint(Sketcher.Constraint("Vertical", 7, 2, 8, 2))
sketch12.addConstraint(Sketcher.Constraint("Vertical", 6, 2, 9, 2))
sketch12.addConstraint(Sketcher.Constraint("DistanceX", 1, 1, 1, 2, Q("0.8 in")))
sketch12.addConstraint(Sketcher.Constraint("DistanceX", -1, 1, 0, 2, Q("0.1 in")))
sketch12.addConstraint(Sketcher.Constraint("DistanceY", 2, 2, -1, 1, Q("0.1 in")))
sketch12.addConstraint(Sketcher.Constraint("DistanceY", 8, 2, -1, 1, Q("2.9 in")))
sketch12.addConstraint(Sketcher.Constraint("DistanceY", 6, 2, 1, 2, Q("0.1 in")))
sketch12.addConstraint(Sketcher.Constraint("DistanceY", 10, 2, 5, 2, Q("0.1 in")))
sketch12.addConstraint(Sketcher.Constraint("DistanceY", 0, 2, 0, 1, Q("0.867 in")))
sketch12.addConstraint(Sketcher.Constraint("DistanceY", 4, 2, 4, 1, Q("22.013333 mm")))
pocket4 = body.newObject("PartDesign::Pocket", "Pocket003")
pocket4.Profile = sketch12
pocket4.Length = Q("0.8 in")

# Sketch on YZ plane
sketch13 = body.newObject("Sketcher::SketchObject", "Sketch012")
sketch13.AttachmentSupport = (doc.getObject("YZ_Plane"), [""])
sketch13.MapMode = "FlatFace"
sketch13.addGeometry(Part.LineSegment(V(0, 0, 0), V(0, -2.5, 0)), False)
sketch13.addGeometry(Part.LineSegment(V(0, -2.5, 0), V(-76.2, -2.5, 0)), False)
sketch13.addGeometry(Part.LineSegment(V(-76.2, -2.5, 0), V(-76.2, 0, 0)), False)
sketch13.addGeometry(Part.LineSegment(V(-76.2, 0, 0), V(0, 0, 0)), False)
sketch13.addConstraint(Sketcher.Constraint("Coincident", 0, 2, 1, 1))
sketch13.addConstraint(Sketcher.Constraint("Coincident", 1, 2, 2, 1))
sketch13.addConstraint(Sketcher.Constraint("Coincident", 2, 2, 3, 1))
sketch13.addConstraint(Sketcher.Constraint("Coincident", 3, 2, 0, 1))
sketch13.addConstraint(Sketcher.Constraint("Vertical", 0))
sketch13.addConstraint(Sketcher.Constraint("Horizontal", 1))
sketch13.addConstraint(Sketcher.Constraint("Vertical", 2))
sketch13.addConstraint(Sketcher.Constraint("Horizontal", 3))
sketch13.addConstraint(Sketcher.Constraint("Coincident", 3, 2, -1, 1))
sketch13.addConstraint(Sketcher.Constraint("DistanceX", 1, 2, 1, 1, Q("3 in")))
sketch13.addConstraint(Sketcher.Constraint("DistanceY", 0, 2, 0, 1, Q("0.1 in")))
pad9 = body.newObject("PartDesign::Pad", "Pad008")
pad9.Profile = sketch13
pad9.Length = Q("0.1 in")
pad9.Reversed = True

# Sketch on XY plane
sketch14 = body.newObject("Sketcher::SketchObject", "Sketch013")
sketch14.AttachmentSupport = (doc.getObject("XY_Plane"), [""])
sketch14.MapMode = "FlatFace"
sketch14.addGeometry(Part.LineSegment(V(25.4, -76.2, 0), V(25.4, 0, 0)), False)
sketch14.addGeometry(Part.LineSegment(V(25.4, 0, 0), V(27.9, 0, 0)), False)
sketch14.addGeometry(Part.LineSegment(V(27.9, 0, 0), V(27.9, -76.2, 0)), False)
sketch14.addGeometry(Part.LineSegment(V(27.9, -76.2, 0), V(25.4, -76.2, 0)), False)
sketch14.addConstraint(Sketcher.Constraint("Coincident", 0, 2, 1, 1))
sketch14.addConstraint(Sketcher.Constraint("Coincident", 1, 2, 2, 1))
sketch14.addConstraint(Sketcher.Constraint("Coincident", 2, 2, 3, 1))
sketch14.addConstraint(Sketcher.Constraint("Coincident", 3, 2, 0, 1))
sketch14.addConstraint(Sketcher.Constraint("Vertical", 0))
sketch14.addConstraint(Sketcher.Constraint("Horizontal", 1))
sketch14.addConstraint(Sketcher.Constraint("Vertical", 2))
sketch14.addConstraint(Sketcher.Constraint("Horizontal", 3))
sketch14.addConstraint(Sketcher.Constraint("PointOnObject", 0, 2, -1))
sketch14.addConstraint(Sketcher.Constraint("DistanceY", 0, 1, 0, 2, Q("3 in")))
sketch14.addConstraint(Sketcher.Constraint("DistanceX", 1, 1, 1, 2, Q("0.1 in")))
sketch14.addConstraint(Sketcher.Constraint("DistanceX", -1, 1, 0, 2, Q("1 in")))
pad10 = body.newObject("PartDesign::Pad", "Pad009")
pad10.Profile = sketch14
pad10.Length = Q("0.1 in")
pad10.Reversed = True

doc.recompute()
